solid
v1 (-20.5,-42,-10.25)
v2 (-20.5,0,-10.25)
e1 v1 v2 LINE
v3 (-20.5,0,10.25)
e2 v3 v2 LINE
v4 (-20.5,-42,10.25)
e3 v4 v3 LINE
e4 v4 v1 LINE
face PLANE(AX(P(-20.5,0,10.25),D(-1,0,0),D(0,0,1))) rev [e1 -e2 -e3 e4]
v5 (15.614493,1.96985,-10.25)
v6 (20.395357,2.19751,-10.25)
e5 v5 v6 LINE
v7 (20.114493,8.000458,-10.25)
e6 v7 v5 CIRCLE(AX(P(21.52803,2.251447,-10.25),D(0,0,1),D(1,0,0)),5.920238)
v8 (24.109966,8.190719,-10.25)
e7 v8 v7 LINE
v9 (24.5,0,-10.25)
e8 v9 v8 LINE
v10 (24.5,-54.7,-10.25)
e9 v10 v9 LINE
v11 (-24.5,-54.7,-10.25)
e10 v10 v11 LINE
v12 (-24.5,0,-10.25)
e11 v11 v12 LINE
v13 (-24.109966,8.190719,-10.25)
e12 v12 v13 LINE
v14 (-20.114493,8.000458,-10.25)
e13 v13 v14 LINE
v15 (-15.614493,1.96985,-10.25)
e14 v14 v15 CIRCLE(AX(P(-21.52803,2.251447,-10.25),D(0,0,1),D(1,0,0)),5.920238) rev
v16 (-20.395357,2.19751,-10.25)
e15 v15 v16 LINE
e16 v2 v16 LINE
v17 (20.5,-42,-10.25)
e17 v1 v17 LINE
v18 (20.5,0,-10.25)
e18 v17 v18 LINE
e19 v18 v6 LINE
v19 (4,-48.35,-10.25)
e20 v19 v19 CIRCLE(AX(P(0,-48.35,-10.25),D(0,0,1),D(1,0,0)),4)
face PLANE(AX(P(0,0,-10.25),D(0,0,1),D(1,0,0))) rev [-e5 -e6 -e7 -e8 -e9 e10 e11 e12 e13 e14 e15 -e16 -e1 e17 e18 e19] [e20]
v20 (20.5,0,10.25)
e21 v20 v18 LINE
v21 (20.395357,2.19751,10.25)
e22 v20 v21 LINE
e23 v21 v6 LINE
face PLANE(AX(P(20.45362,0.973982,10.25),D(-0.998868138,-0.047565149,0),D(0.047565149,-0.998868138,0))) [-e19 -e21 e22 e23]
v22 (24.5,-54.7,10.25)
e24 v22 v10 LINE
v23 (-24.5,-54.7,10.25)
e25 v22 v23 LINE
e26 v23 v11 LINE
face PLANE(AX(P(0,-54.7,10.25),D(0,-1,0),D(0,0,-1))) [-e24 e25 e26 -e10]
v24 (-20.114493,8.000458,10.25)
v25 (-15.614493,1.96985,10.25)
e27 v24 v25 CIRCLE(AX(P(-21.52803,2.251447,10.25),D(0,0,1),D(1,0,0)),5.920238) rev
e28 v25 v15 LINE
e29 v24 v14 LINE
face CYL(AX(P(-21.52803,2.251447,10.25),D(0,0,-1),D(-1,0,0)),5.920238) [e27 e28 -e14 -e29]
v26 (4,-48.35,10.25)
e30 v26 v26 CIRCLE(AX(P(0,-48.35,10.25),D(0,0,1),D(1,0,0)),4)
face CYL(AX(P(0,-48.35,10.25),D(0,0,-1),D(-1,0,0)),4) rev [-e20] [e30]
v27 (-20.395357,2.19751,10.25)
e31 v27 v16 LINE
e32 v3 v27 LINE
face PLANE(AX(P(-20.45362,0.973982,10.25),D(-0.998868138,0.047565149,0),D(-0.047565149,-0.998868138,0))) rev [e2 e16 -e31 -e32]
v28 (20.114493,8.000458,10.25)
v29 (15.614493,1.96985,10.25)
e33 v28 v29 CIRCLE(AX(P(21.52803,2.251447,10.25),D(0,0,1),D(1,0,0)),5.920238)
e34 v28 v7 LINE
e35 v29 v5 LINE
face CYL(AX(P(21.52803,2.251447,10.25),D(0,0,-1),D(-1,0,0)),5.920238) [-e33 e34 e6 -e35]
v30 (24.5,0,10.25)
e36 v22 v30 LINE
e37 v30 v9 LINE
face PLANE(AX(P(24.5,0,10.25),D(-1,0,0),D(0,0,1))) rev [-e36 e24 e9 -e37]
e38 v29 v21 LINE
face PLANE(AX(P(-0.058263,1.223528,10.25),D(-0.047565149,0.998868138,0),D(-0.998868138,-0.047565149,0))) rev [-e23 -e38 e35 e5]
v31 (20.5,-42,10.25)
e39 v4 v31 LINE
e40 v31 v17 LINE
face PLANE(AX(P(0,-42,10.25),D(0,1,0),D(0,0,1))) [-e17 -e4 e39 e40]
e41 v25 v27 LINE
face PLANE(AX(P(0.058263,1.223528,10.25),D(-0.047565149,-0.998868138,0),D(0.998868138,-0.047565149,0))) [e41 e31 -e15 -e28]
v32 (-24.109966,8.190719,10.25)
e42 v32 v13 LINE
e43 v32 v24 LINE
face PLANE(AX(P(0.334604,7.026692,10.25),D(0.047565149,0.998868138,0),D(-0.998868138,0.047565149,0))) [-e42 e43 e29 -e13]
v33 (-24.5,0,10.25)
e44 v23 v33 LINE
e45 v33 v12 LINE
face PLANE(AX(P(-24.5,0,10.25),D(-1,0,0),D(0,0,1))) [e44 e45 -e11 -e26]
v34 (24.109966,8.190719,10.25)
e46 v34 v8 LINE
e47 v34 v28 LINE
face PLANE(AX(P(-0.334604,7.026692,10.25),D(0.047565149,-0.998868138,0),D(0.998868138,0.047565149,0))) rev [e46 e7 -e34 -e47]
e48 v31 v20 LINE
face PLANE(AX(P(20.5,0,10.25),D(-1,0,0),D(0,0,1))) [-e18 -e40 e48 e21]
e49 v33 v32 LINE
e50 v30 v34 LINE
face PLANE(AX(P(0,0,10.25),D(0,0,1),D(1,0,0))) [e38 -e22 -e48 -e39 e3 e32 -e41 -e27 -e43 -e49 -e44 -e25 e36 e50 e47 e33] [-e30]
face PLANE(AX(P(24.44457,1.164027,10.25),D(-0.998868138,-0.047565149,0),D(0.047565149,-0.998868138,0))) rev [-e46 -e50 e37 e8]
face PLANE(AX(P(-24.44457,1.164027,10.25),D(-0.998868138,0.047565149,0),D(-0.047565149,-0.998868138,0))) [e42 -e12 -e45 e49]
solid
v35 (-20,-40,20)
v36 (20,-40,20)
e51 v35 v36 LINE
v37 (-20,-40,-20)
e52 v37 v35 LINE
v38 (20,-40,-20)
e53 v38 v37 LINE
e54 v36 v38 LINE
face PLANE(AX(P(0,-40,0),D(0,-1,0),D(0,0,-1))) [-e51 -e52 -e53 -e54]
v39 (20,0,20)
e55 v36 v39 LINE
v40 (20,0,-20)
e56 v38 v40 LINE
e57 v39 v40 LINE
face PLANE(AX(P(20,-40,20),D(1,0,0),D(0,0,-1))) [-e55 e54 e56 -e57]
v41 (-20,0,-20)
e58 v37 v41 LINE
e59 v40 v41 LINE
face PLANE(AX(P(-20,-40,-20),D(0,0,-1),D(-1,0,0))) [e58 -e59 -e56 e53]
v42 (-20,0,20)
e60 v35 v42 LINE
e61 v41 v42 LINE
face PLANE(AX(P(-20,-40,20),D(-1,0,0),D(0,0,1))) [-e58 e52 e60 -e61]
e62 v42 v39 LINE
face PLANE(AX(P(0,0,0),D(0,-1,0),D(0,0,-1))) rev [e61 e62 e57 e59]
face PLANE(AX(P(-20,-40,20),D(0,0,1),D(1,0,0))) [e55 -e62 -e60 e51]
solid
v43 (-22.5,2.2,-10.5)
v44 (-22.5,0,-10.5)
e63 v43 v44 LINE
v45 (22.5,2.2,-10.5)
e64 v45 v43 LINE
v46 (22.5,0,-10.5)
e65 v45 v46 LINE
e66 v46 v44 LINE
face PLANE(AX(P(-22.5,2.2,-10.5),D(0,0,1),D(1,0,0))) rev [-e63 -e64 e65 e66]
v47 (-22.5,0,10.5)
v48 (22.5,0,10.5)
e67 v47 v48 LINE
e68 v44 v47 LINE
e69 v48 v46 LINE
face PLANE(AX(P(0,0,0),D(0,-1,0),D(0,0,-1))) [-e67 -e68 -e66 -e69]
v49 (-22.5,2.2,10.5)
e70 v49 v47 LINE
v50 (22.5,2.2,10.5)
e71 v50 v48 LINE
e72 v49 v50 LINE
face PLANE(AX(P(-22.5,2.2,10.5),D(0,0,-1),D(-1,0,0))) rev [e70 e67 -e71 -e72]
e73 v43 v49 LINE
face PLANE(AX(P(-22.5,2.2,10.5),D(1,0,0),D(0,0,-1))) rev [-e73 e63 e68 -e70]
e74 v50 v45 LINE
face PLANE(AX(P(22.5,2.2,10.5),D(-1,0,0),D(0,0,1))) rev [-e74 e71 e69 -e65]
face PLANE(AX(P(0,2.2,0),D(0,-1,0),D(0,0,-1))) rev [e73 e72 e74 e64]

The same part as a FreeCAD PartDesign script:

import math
import FreeCAD as App
import Part
import Sketcher
from FreeCAD import Vector
Q = App.Units.Quantity


def add_polygon(sketch, points):
    """Adds a closed chain of lines whose ends are joined by coincident constraints."""
    first, n = sketch.GeometryCount, len(points)
    for a, b in zip(points, points[1:] + points[:1]):
        sketch.addGeometry(Part.LineSegment(App.Vector(*a, 0), App.Vector(*b, 0)), False)
    for i in range(n):
        sketch.addConstraint(Sketcher.Constraint("Coincident", first + i, 2, first + (i + 1) % n, 1))

doc = App.newDocument("Part")
params = doc.addObject("Spreadsheet::Sheet", "Params")
for row, (alias, value) in enumerate([
    ("sketch1_width", "45 mm"),
    ("sketch1_height", "21 mm"),
    ("pad1_length", "2.2 mm"),
    ("sketch2_width", "40 mm"),
    ("pad2_length", "40 mm"),
    ("sketch3_diameter", "8 mm"),
    ("sketch3_width", "41 mm"),
    ("sketch3_width2", "49 mm"),
    ("sketch3_height", "42 mm"),
    ("sketch3_length", "4 mm"),
    ("pad3_length", "20.5 mm"),
], start=1):
    params.set(f"A{row}", alias)
    params.set(f"B{row}", "=" + value)
    params.setAlias(f"B{row}", alias)

body = doc.addObject("PartDesign::Body", "Body")

# Sketch on XZ plane
sketch1 = doc.addObject("Sketcher::SketchObject", "Sketch")
body.addObject(sketch1)
sketch1.AttachmentSupport = (doc.XZ_Plane, [""])
sketch1.MapMode = "FlatFace"
add_polygon(sketch1, [(-22, -10), (-22, 10), (22, 10), (22, -10)])  # lines 0-3
sketch1.addConstraint([
    Sketcher.Constraint("Vertical", 0),
    Sketcher.Constraint("Horizontal", 1),
    Sketcher.Constraint("Vertical", 2),
    Sketcher.Constraint("Horizontal", 3),
    Sketcher.Constraint("Symmetric", 0, 2, 2, 2, -1, 1),
    Sketcher.Constraint("DistanceX", 1, 1, 1, 2, Q("45 mm")),
    Sketcher.Constraint("DistanceY", 0, 1, 0, 2, Q("21 mm")),
])
sketch1.setExpression("Constraints[9]", "Params.sketch1_width")
sketch1.setExpression("Constraints[10]", "Params.sketch1_height")
pad1 = doc.addObject("PartDesign::Pad", "Pad")
body.addObject(pad1)
pad1.Profile = sketch1
pad1.setExpression("Length", "Params.pad1_length")
pad1.Reversed = True
body2 = doc.addObject("PartDesign::Body", "Body001")

# Sketch on XZ plane
sketch2 = doc.addObject("Sketcher::SketchObject", "Sketch001")
body2.addObject(sketch2)
sketch2.AttachmentSupport = (doc.getObject("XZ_Plane001"), [""])
sketch2.MapMode = "FlatFace"
add_polygon(sketch2, [(-20, -20), (-20, 20), (20, 20), (20, -20)])  # lines 0-3
sketch2.addConstraint([
    Sketcher.Constraint("Vertical", 0),
    Sketcher.Constraint("Horizontal", 1),
    Sketcher.Constraint("Vertical", 2),
    Sketcher.Constraint("Horizontal", 3),
    Sketcher.Constraint("Symmetric", 0, 2, 2, 2, -1, 1),
    Sketcher.Constraint("Equal", 3, 0),
    Sketcher.Constraint("DistanceX", 1, 1, 1, 2, Q("40 mm")),
])
sketch2.setExpression("Constraints[10]", "Params.sketch2_width")
pad2 = doc.addObject("PartDesign::Pad", "Pad001")
body2.addObject(pad2)
pad2.Profile = sketch2
pad2.setExpression("Length", "Params.pad2_length")
body3 = doc.addObject("PartDesign::Body", "Body002")

# Sketch on XY plane
sketch3 = doc.addObject("Sketcher::SketchObject", "Sketch002")
body3.addObject(sketch3)
sketch3.AttachmentSupport = (doc.getObject("XY_Plane002"), [""])
sketch3.MapMode = "FlatFace"
sketch3.addGeometry([
    Part.LineSegment(Vector(24.5, -54.7, 0), Vector(24.5, 0, 0)),  # 0
    Part.LineSegment(Vector(24.5, 0, 0), Vector(24.1, 8.2, 0)),  # 1
    Part.LineSegment(Vector(24.1, 8.2, 0), Vector(20.1, 8, 0)),  # 2
    Part.ArcOfCircle(Part.Circle(Vector(21.5, 2.3, 0), Vector(0, 0, 1), 5.9), math.radians(104), math.radians(183)),  # 3
    Part.LineSegment(Vector(15.6, 2, 0), Vector(20.4, 2.2, 0)),  # 4
    Part.LineSegment(Vector(20.4, 2.2, 0), Vector(20.5, 0, 0)),  # 5
    Part.LineSegment(Vector(20.5, 0, 0), Vector(20.5, -42, 0)),  # 6
    Part.LineSegment(Vector(20.5, -42, 0), Vector(-20.5, -42, 0)),  # 7
    Part.LineSegment(Vector(-20.5, -42, 0), Vector(-20.5, 0, 0)),  # 8
    Part.LineSegment(Vector(-20.5, 0, 0), Vector(-20.4, 2.2, 0)),  # 9
    Part.LineSegment(Vector(-20.4, 2.2, 0), Vector(-15.6, 2, 0)),  # 10
    Part.ArcOfCircle(Part.Circle(Vector(-21.5, 2.3, 0), Vector(0, 0, 1), 5.9), math.radians(-3), math.radians(76)),  # 11
    Part.LineSegment(Vector(-20.1, 8, 0), Vector(-24.1, 8.2, 0)),  # 12
    Part.LineSegment(Vector(-24.1, 8.2, 0), Vector(-24.5, 0, 0)),  # 13
    Part.LineSegment(Vector(-24.5, 0, 0), Vector(-24.5, -54.7, 0)),  # 14
    Part.LineSegment(Vector(-24.5, -54.7, 0), Vector(24.5, -54.7, 0)),  # 15
    Part.Circle(Vector(0, -48.4, 0), Vector(0, 0, 1), 4),  # 16
], False)
sketch3.addConstraint([
    Sketcher.Constraint("Coincident", 0, 2, 1, 1),
    Sketcher.Constraint("Coincident", 1, 2, 2, 1),
    Sketcher.Constraint("Coincident", 2, 2, 3, 1),
    Sketcher.Constraint("Coincident", 3, 2, 4, 1),
    Sketcher.Constraint("Coincident", 4, 2, 5, 1),
    Sketcher.Constraint("Coincident", 5, 2, 6, 1),
    Sketcher.Constraint("Coincident", 6, 2, 7, 1),
    Sketcher.Constraint("Coincident", 7, 2, 8, 1),
    Sketcher.Constraint("Coincident", 8, 2, 9, 1),
    Sketcher.Constraint("Coincident", 9, 2, 10, 1),
    Sketcher.Constraint("Coincident", 10, 2, 11, 1),
    Sketcher.Constraint("Coincident", 11, 2, 12, 1),
    Sketcher.Constraint("Coincident", 12, 2, 13, 1),
    Sketcher.Constraint("Coincident", 13, 2, 14, 1),
    Sketcher.Constraint("Coincident", 14, 2, 15, 1),
    Sketcher.Constraint("Coincident", 15, 2, 0, 1),
    Sketcher.Constraint("Vertical", 0),
    Sketcher.Constraint("Vertical", 6),
    Sketcher.Constraint("Horizontal", 7),
    Sketcher.Constraint("Vertical", 8),
    Sketcher.Constraint("Vertical", 14),
    Sketcher.Constraint("Horizontal", 15),
    Sketcher.Constraint("Equal", 3, 11),
    Sketcher.Constraint("Symmetric", 5, 2, 8, 2, -1, 1),
    Sketcher.Constraint("Symmetric", 0, 2, 13, 2, -1, 1),
    Sketcher.Constraint("Symmetric", 3, 3, 11, 3, -2),
    Sketcher.Constraint("Symmetric", 4, 2, 9, 2, -2),
    Sketcher.Constraint("Symmetric", 1, 2, 12, 2, -2),
    Sketcher.Constraint("PointOnObject", 16, 3, -2),
    Sketcher.Constraint("PointOnObject", 0, 2, -1),
    Sketcher.Constraint("PointOnObject", 5, 2, -1),
    Sketcher.Constraint("Perpendicular", 1, 2),
    Sketcher.Constraint("Parallel", 2, 4),
    Sketcher.Constraint("Perpendicular", 4, 5),
    Sketcher.Constraint("Perpendicular", 9, 10),
    Sketcher.Constraint("Parallel", 10, 12),
    Sketcher.Constraint("Diameter", 16, Q("8 mm")),
    Sketcher.Constraint("DistanceX", 7, 2, 7, 1, Q("41 mm")),
    Sketcher.Constraint("DistanceX", 15, 1, 15, 2, Q("49 mm")),
    Sketcher.Constraint("DistanceY", 6, 2, 6, 1, Q("42 mm")),
    Sketcher.Constraint("Distance", 2, Q("4 mm")),
    Sketcher.Constraint("DistanceY", 0, 1, 0, 2, Q("54.7 mm")),
    Sketcher.Constraint("Distance", 1, Q("8.2 mm")),
    Sketcher.Constraint("Distance", 5, Q("2.2 mm")),
    Sketcher.Constraint("DistanceX", 3, 2, 2, 2, Q("4.5 mm")),
    Sketcher.Constraint("DistanceY", 16, 3, -1, 1, Q("48.35 mm")),
    Sketcher.Constraint("Radius", 3, Q("5.920238 mm")),
    Sketcher.Constraint("Distance", 4, Q("4.786281 mm")),
])
sketch3.setExpression("Constraints[36]", "Params.sketch3_diameter")
sketch3.setExpression("Constraints[37]", "Params.sketch3_width")
sketch3.setExpression("Constraints[38]", "Params.sketch3_width2")
sketch3.setExpression("Constraints[39]", "Params.sketch3_height")
sketch3.setExpression("Constraints[40]", "Params.sketch3_length")
pad3 = doc.addObject("PartDesign::Pad", "Pad002")
body3.addObject(pad3)
pad3.Profile = sketch3
pad3.setExpression("Length", "Params.pad3_length")
pad3.Midplane = True

doc.recompute()
